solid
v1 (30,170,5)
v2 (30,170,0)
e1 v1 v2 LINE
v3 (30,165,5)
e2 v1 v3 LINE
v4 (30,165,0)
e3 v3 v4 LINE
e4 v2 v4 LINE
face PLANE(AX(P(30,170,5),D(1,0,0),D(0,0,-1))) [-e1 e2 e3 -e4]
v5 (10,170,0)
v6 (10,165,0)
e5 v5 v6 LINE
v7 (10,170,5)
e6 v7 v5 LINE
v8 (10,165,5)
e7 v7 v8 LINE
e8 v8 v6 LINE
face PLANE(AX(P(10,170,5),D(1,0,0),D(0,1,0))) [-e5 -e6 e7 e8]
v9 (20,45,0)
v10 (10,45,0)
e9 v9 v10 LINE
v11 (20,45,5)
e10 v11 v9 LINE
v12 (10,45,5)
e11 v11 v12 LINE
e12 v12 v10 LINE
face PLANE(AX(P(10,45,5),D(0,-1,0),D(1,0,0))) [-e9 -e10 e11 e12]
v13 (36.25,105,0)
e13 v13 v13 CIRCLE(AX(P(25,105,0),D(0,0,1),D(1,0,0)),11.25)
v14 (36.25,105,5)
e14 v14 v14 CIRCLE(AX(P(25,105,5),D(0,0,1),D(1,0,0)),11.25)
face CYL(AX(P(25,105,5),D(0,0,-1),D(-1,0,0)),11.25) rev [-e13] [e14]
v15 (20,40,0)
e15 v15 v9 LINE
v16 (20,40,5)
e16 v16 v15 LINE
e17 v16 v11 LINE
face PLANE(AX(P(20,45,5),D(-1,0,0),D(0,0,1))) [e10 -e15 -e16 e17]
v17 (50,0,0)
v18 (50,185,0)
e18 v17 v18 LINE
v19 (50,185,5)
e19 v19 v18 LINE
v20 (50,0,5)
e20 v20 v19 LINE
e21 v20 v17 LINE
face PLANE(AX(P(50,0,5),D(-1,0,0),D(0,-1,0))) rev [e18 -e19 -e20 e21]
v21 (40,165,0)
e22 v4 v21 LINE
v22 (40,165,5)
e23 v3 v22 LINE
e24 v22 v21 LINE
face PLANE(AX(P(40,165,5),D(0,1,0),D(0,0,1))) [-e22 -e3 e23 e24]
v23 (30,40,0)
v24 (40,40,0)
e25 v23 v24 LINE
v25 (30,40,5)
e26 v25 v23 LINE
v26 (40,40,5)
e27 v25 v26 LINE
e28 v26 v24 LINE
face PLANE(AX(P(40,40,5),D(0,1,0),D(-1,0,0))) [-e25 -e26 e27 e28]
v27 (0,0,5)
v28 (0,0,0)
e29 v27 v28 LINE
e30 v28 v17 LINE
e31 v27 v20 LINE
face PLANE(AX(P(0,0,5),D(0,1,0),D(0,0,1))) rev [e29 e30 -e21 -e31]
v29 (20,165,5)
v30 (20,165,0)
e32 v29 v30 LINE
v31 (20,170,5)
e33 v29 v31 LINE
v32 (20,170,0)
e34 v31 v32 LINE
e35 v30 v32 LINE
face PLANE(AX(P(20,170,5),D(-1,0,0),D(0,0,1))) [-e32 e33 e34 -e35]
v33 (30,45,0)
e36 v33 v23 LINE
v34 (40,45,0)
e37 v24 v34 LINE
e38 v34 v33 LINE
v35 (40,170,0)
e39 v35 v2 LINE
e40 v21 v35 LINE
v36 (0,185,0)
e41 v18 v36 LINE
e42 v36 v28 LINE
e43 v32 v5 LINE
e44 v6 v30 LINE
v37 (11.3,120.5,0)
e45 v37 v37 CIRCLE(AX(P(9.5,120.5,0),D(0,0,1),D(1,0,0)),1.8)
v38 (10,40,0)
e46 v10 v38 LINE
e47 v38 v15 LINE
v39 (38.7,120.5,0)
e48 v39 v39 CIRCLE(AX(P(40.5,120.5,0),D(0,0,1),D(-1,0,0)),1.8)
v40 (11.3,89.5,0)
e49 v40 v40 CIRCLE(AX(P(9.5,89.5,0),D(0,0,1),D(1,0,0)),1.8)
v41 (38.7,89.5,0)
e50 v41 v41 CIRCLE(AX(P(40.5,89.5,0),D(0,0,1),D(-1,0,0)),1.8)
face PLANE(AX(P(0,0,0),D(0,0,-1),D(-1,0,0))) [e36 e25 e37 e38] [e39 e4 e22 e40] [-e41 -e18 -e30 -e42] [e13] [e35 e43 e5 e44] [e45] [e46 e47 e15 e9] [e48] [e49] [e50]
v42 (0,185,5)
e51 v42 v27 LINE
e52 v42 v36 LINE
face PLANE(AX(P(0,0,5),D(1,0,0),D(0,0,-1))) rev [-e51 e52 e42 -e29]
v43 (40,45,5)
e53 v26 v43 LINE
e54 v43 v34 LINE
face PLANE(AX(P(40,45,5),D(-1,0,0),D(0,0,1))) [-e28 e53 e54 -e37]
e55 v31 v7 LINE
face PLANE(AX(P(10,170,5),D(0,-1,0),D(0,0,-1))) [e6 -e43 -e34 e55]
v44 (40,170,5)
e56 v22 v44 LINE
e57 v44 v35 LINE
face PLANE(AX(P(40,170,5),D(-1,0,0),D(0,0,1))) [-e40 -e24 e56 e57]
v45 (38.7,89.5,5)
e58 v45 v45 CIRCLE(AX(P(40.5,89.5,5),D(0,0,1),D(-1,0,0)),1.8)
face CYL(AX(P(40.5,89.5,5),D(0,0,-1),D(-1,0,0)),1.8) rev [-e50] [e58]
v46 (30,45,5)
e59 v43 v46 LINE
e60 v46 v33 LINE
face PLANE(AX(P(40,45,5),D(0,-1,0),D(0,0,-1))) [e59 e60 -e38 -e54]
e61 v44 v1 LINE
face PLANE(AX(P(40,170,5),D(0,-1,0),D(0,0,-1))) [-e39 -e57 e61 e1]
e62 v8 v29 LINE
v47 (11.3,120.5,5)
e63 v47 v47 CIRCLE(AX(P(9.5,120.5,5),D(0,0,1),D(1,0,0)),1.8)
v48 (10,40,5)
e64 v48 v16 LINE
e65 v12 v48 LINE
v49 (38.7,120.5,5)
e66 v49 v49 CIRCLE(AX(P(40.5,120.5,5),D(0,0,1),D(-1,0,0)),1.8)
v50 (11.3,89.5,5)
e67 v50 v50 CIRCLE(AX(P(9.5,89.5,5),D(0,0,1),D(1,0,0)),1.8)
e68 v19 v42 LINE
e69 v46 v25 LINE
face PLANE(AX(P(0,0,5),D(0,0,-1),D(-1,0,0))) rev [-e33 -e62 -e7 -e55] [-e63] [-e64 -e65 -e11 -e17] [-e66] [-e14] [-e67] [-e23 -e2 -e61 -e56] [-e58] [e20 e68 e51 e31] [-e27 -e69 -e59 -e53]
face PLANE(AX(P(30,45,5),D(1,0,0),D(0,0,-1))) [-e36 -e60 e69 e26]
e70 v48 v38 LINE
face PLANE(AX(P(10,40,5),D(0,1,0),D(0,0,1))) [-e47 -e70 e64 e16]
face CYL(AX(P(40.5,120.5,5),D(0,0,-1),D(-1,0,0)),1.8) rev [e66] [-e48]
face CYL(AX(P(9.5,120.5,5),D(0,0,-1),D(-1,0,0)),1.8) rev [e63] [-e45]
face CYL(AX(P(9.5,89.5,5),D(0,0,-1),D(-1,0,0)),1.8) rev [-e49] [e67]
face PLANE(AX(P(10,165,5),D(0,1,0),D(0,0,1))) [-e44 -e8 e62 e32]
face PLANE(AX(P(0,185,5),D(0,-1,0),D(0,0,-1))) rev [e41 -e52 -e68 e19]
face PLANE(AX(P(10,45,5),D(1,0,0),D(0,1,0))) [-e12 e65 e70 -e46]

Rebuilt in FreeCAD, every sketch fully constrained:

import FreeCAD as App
import Part
import Sketcher
Q = App.Units.Quantity

doc = App.newDocument("Part")
params = doc.addObject("Spreadsheet::Sheet", "Params")
for row, (alias, value) in enumerate([
    ("sketch1_diameter", "3.6 mm"),
    ("sketch1_diameter2", "22.5 mm"),
    ("sketch1_width", "50 mm"),
    ("sketch1_width2", "10 mm"),
    ("sketch1_height", "185 mm"),
    ("pad1_length", "5 mm"),
], start=1):
    params.set(f"A{row}", alias)
    params.set(f"B{row}", "=" + value)
    params.setAlias(f"B{row}", alias)

body = doc.addObject("PartDesign::Body", "Body")

sketch1 = body.newObject("Sketcher::SketchObject", "Sketch")
sketch1.AttachmentSupport = (doc.getObject("XY_Plane"), [""])
sketch1.MapMode = "FlatFace"
sketch1.addGeometry([
    Part.LineSegment(App.Vector(0, 185, 0), App.Vector(0, 0, 0)),
    Part.LineSegment(App.Vector(0, 0, 0), App.Vector(50, 0, 0)),
    Part.LineSegment(App.Vector(50, 0, 0), App.Vector(50, 185, 0)),
    Part.LineSegment(App.Vector(50, 185, 0), App.Vector(0, 185, 0)),
    Part.LineSegment(App.Vector(20, 40, 0), App.Vector(10, 40, 0)),
    Part.LineSegment(App.Vector(10, 40, 0), App.Vector(10, 45, 0)),
    Part.LineSegment(App.Vector(10, 45, 0), App.Vector(20, 45, 0)),
    Part.LineSegment(App.Vector(20, 45, 0), App.Vector(20, 40, 0)),
    Part.Circle(App.Vector(9.5, 89.5, 0), App.Vector(0, 0, 1), 1.8),
    Part.LineSegment(App.Vector(40, 40, 0), App.Vector(30, 40, 0)),
    Part.LineSegment(App.Vector(30, 40, 0), App.Vector(30, 45, 0)),
    Part.LineSegment(App.Vector(30, 45, 0), App.Vector(40, 45, 0)),
    Part.LineSegment(App.Vector(40, 45, 0), App.Vector(40, 40, 0)),
    Part.Circle(App.Vector(40.5, 89.5, 0), App.Vector(0, 0, 1), 1.8),
    Part.Circle(App.Vector(9.5, 120.5, 0), App.Vector(0, 0, 1), 1.8),
    Part.LineSegment(App.Vector(20, 165, 0), App.Vector(10, 165, 0)),
    Part.LineSegment(App.Vector(10, 165, 0), App.Vector(10, 170, 0)),
    Part.LineSegment(App.Vector(10, 170, 0), App.Vector(20, 170, 0)),
    Part.LineSegment(App.Vector(20, 170, 0), App.Vector(20, 165, 0)),
    Part.Circle(App.Vector(25, 105, 0), App.Vector(0, 0, 1), 11.25),
    Part.Circle(App.Vector(40.5, 120.5, 0), App.Vector(0, 0, 1), 1.8),
    Part.LineSegment(App.Vector(40, 165, 0), App.Vector(30, 165, 0)),
    Part.LineSegment(App.Vector(30, 165, 0), App.Vector(30, 170, 0)),
    Part.LineSegment(App.Vector(30, 170, 0), App.Vector(40, 170, 0)),
    Part.LineSegment(App.Vector(40, 170, 0), App.Vector(40, 165, 0)),
], False)
sketch1.addConstraint([
    Sketcher.Constraint("Coincident", 0, 2, 1, 1),
    Sketcher.Constraint("Coincident", 1, 2, 2, 1),
    Sketcher.Constraint("Coincident", 2, 2, 3, 1),
    Sketcher.Constraint("Coincident", 3, 2, 0, 1),
    Sketcher.Constraint("Coincident", 4, 2, 5, 1),
    Sketcher.Constraint("Coincident", 5, 2, 6, 1),
    Sketcher.Constraint("Coincident", 6, 2, 7, 1),
    Sketcher.Constraint("Coincident", 7, 2, 4, 1),
    Sketcher.Constraint("Coincident", 9, 2, 10, 1),
    Sketcher.Constraint("Coincident", 10, 2, 11, 1),
    Sketcher.Constraint("Coincident", 11, 2, 12, 1),
    Sketcher.Constraint("Coincident", 12, 2, 9, 1),
    Sketcher.Constraint("Coincident", 15, 2, 16, 1),
    Sketcher.Constraint("Coincident", 16, 2, 17, 1),
    Sketcher.Constraint("Coincident", 17, 2, 18, 1),
    Sketcher.Constraint("Coincident", 18, 2, 15, 1),
    Sketcher.Constraint("Coincident", 21, 2, 22, 1),
    Sketcher.Constraint("Coincident", 22, 2, 23, 1),
    Sketcher.Constraint("Coincident", 23, 2, 24, 1),
    Sketcher.Constraint("Coincident", 24, 2, 21, 1),
    Sketcher.Constraint("Vertical", 0),
    Sketcher.Constraint("Horizontal", 1),
    Sketcher.Constraint("Vertical", 2),
    Sketcher.Constraint("Horizontal", 3),
    Sketcher.Constraint("Horizontal", 4),
    Sketcher.Constraint("Vertical", 5),
    Sketcher.Constraint("Horizontal", 6),
    Sketcher.Constraint("Vertical", 7),
    Sketcher.Constraint("Horizontal", 9),
    Sketcher.Constraint("Vertical", 10),
    Sketcher.Constraint("Horizontal", 11),
    Sketcher.Constraint("Vertical", 12),
    Sketcher.Constraint("Horizontal", 15),
    Sketcher.Constraint("Vertical", 16),
    Sketcher.Constraint("Horizontal", 17),
    Sketcher.Constraint("Vertical", 18),
    Sketcher.Constraint("Horizontal", 21),
    Sketcher.Constraint("Vertical", 22),
    Sketcher.Constraint("Horizontal", 23),
    Sketcher.Constraint("Vertical", 24),
    Sketcher.Constraint("Coincident", 0, 2, -1, 1),
    Sketcher.Constraint("Equal", 8, 13),
    Sketcher.Constraint("Equal", 13, 14),
    Sketcher.Constraint("Equal", 14, 20),
    Sketcher.Constraint("Horizontal", 8, 3, 13, 3),
    Sketcher.Constraint("Horizontal", 14, 3, 20, 3),
    Sketcher.Constraint("Horizontal", 7, 2, 9, 2),
    Sketcher.Constraint("Horizontal", 6, 2, 10, 2),
    Sketcher.Constraint("Horizontal", 18, 2, 21, 2),
    Sketcher.Constraint("Horizontal", 17, 2, 22, 2),
    Sketcher.Constraint("Vertical", 8, 3, 14, 3),
    Sketcher.Constraint("Vertical", 13, 3, 20, 3),
    Sketcher.Constraint("Vertical", 5, 2, 15, 2),
    Sketcher.Constraint("Vertical", 7, 2, 17, 2),
    Sketcher.Constraint("Vertical", 10, 2, 21, 2),
    Sketcher.Constraint("Vertical", 12, 2, 23, 2),
    Sketcher.Constraint("Equal", 6, 9),
    Sketcher.Constraint("Equal", 12, 16),
    Sketcher.Constraint("Diameter", 8, Q("3.6 mm")),
    Sketcher.Constraint("Diameter", 19, Q("22.5 mm")),
    Sketcher.Constraint("DistanceX", 1, 1, 1, 2, Q("50 mm")),
    Sketcher.Constraint("DistanceX", 4, 2, 4, 1, Q("10 mm")),
    Sketcher.Constraint("DistanceY", 0, 2, 0, 1, Q("185 mm")),
    Sketcher.Constraint("DistanceY", 5, 1, 5, 2, Q("5 mm")),
    Sketcher.Constraint("DistanceX", -1, 1, 19, 3, Q("25 mm")),
    Sketcher.Constraint("DistanceY", -1, 1, 19, 3, Q("105 mm")),
    Sketcher.Constraint("DistanceX", -1, 1, 4, 2, Q("10 mm")),
    Sketcher.Constraint("DistanceY", -1, 1, 4, 2, Q("40 mm")),
    Sketcher.Constraint("DistanceX", -1, 1, 9, 2, Q("30 mm")),
    Sketcher.Constraint("DistanceY", -1, 1, 15, 2, Q("165 mm")),
    Sketcher.Constraint("DistanceX", 8, 3, 13, 3, Q("31 mm")),
    Sketcher.Constraint("DistanceY", 8, 3, 14, 3, Q("31 mm")),
    Sketcher.Constraint("DistanceX", -1, 1, 8, 3, Q("9.5 mm")),
    Sketcher.Constraint("DistanceY", -1, 1, 8, 3, Q("89.5 mm")),
])
sketch1.setExpression("Constraints[58]", "Params.sketch1_diameter")
sketch1.setExpression("Constraints[59]", "Params.sketch1_diameter2")
sketch1.setExpression("Constraints[60]", "Params.sketch1_width")
sketch1.setExpression("Constraints[61]", "Params.sketch1_width2")
sketch1.setExpression("Constraints[62]", "Params.sketch1_height")
pad1 = body.newObject("PartDesign::Pad", "Pad")
pad1.Profile = sketch1
pad1.setExpression("Length", "Params.pad1_length")

doc.recompute()
